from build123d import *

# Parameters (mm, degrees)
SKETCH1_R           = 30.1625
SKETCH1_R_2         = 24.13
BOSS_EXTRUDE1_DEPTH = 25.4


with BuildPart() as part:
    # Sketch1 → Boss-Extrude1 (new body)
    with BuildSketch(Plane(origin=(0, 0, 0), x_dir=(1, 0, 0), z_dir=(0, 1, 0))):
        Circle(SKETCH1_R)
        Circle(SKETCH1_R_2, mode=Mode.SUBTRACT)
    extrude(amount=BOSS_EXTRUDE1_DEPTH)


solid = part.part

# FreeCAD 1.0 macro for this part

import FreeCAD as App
import Part
import Sketcher
Q = App.Units.Quantity

doc = App.newDocument("Part")
body = doc.addObject("PartDesign::Body", "Body")

sketch1 = body.newObject("Sketcher::SketchObject", "Sketch")
sketch1.AttachmentSupport = (doc.getObject("XZ_Plane"), [""])
sketch1.MapMode = "FlatFace"
sketch1.addGeometry([
    Part.Circle(App.Vector(0, 0, 0), App.Vector(0, 0, 1), 30.1625),
    Part.Circle(App.Vector(0, 0, 0), App.Vector(0, 0, 1), 24.13),
], False)
sketch1.addConstraint([
    Sketcher.Constraint("Coincident", 0, 3, -1, 1),
    Sketcher.Constraint("Coincident", 1, 3, -1, 1),
    Sketcher.Constraint("Diameter", 1, Q("1.9 in")),
    Sketcher.Constraint("Diameter", 0, Q("2.375 in")),
])
pad1 = body.newObject("PartDesign::Pad", "Pad")
pad1.Profile = sketch1
pad1.Length = Q("1 in")
pad1.Reversed = True

doc.recompute()
